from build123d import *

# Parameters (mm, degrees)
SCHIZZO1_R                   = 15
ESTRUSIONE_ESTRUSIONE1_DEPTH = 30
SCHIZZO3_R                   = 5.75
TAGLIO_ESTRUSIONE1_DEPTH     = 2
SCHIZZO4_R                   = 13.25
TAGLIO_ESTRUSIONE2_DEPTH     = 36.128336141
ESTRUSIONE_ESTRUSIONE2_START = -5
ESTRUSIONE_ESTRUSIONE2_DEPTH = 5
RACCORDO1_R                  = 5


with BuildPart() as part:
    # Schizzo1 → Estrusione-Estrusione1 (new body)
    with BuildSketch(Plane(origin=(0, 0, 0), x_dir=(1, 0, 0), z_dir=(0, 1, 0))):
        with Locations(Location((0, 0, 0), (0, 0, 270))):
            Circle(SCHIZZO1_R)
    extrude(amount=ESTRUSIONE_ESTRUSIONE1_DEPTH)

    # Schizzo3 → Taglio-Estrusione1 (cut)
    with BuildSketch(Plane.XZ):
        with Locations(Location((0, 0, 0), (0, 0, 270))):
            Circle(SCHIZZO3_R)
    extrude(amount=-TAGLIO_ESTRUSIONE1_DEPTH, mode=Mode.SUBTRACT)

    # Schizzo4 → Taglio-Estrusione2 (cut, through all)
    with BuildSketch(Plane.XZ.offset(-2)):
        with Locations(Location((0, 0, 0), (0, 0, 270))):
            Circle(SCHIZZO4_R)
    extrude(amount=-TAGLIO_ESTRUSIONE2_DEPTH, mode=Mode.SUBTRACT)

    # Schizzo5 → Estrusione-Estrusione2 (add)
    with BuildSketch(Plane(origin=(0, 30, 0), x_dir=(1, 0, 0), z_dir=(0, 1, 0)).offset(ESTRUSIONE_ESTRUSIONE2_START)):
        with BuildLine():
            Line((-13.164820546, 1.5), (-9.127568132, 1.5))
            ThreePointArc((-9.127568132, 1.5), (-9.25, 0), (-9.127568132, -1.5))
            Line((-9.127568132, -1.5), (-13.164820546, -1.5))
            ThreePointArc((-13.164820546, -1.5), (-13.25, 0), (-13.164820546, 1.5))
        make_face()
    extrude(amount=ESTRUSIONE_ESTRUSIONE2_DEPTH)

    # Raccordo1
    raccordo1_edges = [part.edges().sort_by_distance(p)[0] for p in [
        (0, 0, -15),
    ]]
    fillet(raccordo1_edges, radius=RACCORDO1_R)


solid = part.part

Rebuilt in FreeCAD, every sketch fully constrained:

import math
import FreeCAD as App
import Part
import Sketcher

V = App.Vector


def edges_at(feature, points):
    """Names of the edges that pass closest to the given points."""
    edges = feature.Shape.Edges
    near = lambda p: min(range(len(edges)), key=lambda i: edges[i].distToShape(Part.Vertex(*p))[0])
    return sorted({f"Edge{near(p) + 1}" for p in points})

doc = App.newDocument("Part")
body = doc.addObject("PartDesign::Body", "Body")

sketch1 = doc.addObject("Sketcher::SketchObject", "Sketch")
body.addObject(sketch1)
sketch1.AttachmentSupport = (doc.XZ_Plane, [""])
sketch1.MapMode = "FlatFace"
sketch1.addGeometry(Part.Circle(V(0, 0, 0), V(0, 0, 1), 15), False)
sketch1.addConstraint(Sketcher.Constraint("Coincident", 0, 3, -1, 1))
sketch1.addConstraint(Sketcher.Constraint("Diameter", 0, 30.0))
pad1 = doc.addObject("PartDesign::Pad", "Pad")
body.addObject(pad1)
pad1.Profile = sketch1
pad1.Length = 30
pad1.Reversed = True

sketch2 = doc.addObject("Sketcher::SketchObject", "Sketch001")
body.addObject(sketch2)
sketch2.AttachmentSupport = (doc.XZ_Plane, [""])
sketch2.MapMode = "FlatFace"
sketch2.addGeometry(Part.Circle(V(0, 0, 0), V(0, 0, 1), 5.75), False)
sketch2.addConstraint(Sketcher.Constraint("Coincident", 0, 3, -1, 1))
sketch2.addConstraint(Sketcher.Constraint("Diameter", 0, 11.5))
pocket1 = doc.addObject("PartDesign::Pocket", "Pocket")
body.addObject(pocket1)
pocket1.Profile = sketch2
pocket1.Length = 2

sketch3 = doc.addObject("Sketcher::SketchObject", "Sketch002")
body.addObject(sketch3)
sketch3.AttachmentSupport = (doc.XZ_Plane, [""])
sketch3.MapMode = "FlatFace"
sketch3.AttachmentOffset = App.Placement(V(0, 0, -2), App.Rotation())
sketch3.addGeometry(Part.Circle(V(0, 0, 0), V(0, 0, 1), 13.25), False)
sketch3.addConstraint(Sketcher.Constraint("Coincident", 0, 3, -1, 1))
sketch3.addConstraint(Sketcher.Constraint("Diameter", 0, 26.5))
pocket2 = doc.addObject("PartDesign::Pocket", "Pocket001")
body.addObject(pocket2)
pocket2.Profile = sketch3
pocket2.Type = "ThroughAll"

sketch4 = doc.addObject("Sketcher::SketchObject", "Sketch003")
body.addObject(sketch4)
sketch4.AttachmentSupport = (doc.XZ_Plane, [""])
sketch4.MapMode = "FlatFace"
sketch4.AttachmentOffset = App.Placement(V(0, 0, -25), App.Rotation())
sketch4.addGeometry(Part.LineSegment(V(-9.127568, -1.5, 0), V(-13.164821, -1.5, 0)), False)
sketch4.addGeometry(Part.ArcOfCircle(Part.Circle(V(0, 0, 0), V(0, 0, 1), 13.25), math.radians(173.49975), math.radians(186.50025)), False)
sketch4.addGeometry(Part.LineSegment(V(-13.164821, 1.5, 0), V(-9.127568, 1.5, 0)), False)
sketch4.addGeometry(Part.ArcOfCircle(Part.Circle(V(0, 0, 0), V(0, 0, 1), 9.25), math.radians(170.667582), math.radians(189.332418)), False)
sketch4.addConstraint(Sketcher.Constraint("Coincident", 0, 2, 1, 2))
sketch4.addConstraint(Sketcher.Constraint("Coincident", 1, 1, 2, 1))
sketch4.addConstraint(Sketcher.Constraint("Coincident", 2, 2, 3, 1))
sketch4.addConstraint(Sketcher.Constraint("Coincident", 3, 2, 0, 1))
sketch4.addConstraint(Sketcher.Constraint("Horizontal", 0))
sketch4.addConstraint(Sketcher.Constraint("Horizontal", 2))
sketch4.addConstraint(Sketcher.Constraint("Coincident", 1, 3, -1, 1))
sketch4.addConstraint(Sketcher.Constraint("Coincident", 3, 3, -1, 1))
sketch4.addConstraint(Sketcher.Constraint("Vertical", 0, 2, 1, 1))
sketch4.addConstraint(Sketcher.Constraint("Radius", 1, 13.25))
sketch4.addConstraint(Sketcher.Constraint("Radius", 3, 9.25))
sketch4.addConstraint(Sketcher.Constraint("DistanceY", 0, 2, 1, 1, 3.0))
pad2 = doc.addObject("PartDesign::Pad", "Pad001")
body.addObject(pad2)
pad2.Profile = sketch4
pad2.Length = 5
pad2.Reversed = True
doc.recompute()

fillet = doc.addObject("PartDesign::Fillet", "Fillet")
body.addObject(fillet)
fillet.Base = (pad2, edges_at(pad2, [(0, 0, -15)]))
fillet.Radius = 5

doc.recompute()
